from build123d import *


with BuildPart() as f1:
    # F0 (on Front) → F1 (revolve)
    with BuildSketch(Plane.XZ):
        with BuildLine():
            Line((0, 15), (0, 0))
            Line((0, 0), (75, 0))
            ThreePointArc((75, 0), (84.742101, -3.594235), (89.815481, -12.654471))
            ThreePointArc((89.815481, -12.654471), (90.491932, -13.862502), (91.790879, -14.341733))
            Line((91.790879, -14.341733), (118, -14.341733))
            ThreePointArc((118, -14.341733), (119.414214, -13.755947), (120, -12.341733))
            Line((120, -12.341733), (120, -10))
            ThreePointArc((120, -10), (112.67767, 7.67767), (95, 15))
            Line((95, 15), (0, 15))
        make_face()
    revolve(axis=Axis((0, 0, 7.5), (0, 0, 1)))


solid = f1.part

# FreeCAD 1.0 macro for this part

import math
import FreeCAD as App
import Part
import Sketcher
from FreeCAD import Vector
Q = App.Units.Quantity

doc = App.newDocument("Part")
body = doc.addObject("PartDesign::Body", "Body")

# Sketch on XZ plane
sketch1 = body.newObject("Sketcher::SketchObject", "Sketch")
sketch1.AttachmentSupport = (doc.getObject("XZ_Plane"), [""])
sketch1.MapMode = "FlatFace"
sketch1.addGeometry([
    Part.LineSegment(Vector(0, 15, 0), Vector(0, 0, 0)),  # 0
    Part.LineSegment(Vector(0, 0, 0), Vector(75, 0, 0)),  # 1
    Part.ArcOfCircle(Part.Circle(Vector(75, -15, 0), Vector(0, 0, 1), 15), math.radians(9), math.radians(90)),  # 2
    Part.ArcOfCircle(Part.Circle(Vector(91.8, -12.3, 0), Vector(0, 0, 1), 2), math.radians(-171), math.radians(-90)),  # 3
    Part.LineSegment(Vector(91.8, -14.3, 0), Vector(118, -14.3, 0)),  # 4
    Part.ArcOfCircle(Part.Circle(Vector(118, -12.3, 0), Vector(0, 0, 1), 2), math.radians(-90), math.radians(0)),  # 5
    Part.LineSegment(Vector(120, -12.3, 0), Vector(120, -10, 0)),  # 6
    Part.ArcOfCircle(Part.Circle(Vector(95, -10, 0), Vector(0, 0, 1), 25), math.radians(0), math.radians(90)),  # 7
    Part.LineSegment(Vector(95, 15, 0), Vector(0, 15, 0)),  # 8
], False)
sketch1.addConstraint([
    Sketcher.Constraint("Coincident", 0, 2, 1, 1),
    Sketcher.Constraint("Tangent", 1, 2, 2, 2),
    Sketcher.Constraint("Tangent", 2, 1, 3, 1),
    Sketcher.Constraint("Tangent", 3, 2, 4, 1),
    Sketcher.Constraint("Tangent", 4, 2, 5, 1),
    Sketcher.Constraint("Tangent", 5, 2, 6, 1),
    Sketcher.Constraint("Tangent", 6, 2, 7, 1),
    Sketcher.Constraint("Tangent", 7, 2, 8, 1),
    Sketcher.Constraint("Coincident", 8, 2, 0, 1),
    Sketcher.Constraint("Vertical", 0),
    Sketcher.Constraint("Horizontal", 1),
    Sketcher.Constraint("Horizontal", 4),
    Sketcher.Constraint("Vertical", 6),
    Sketcher.Constraint("Horizontal", 8),
    Sketcher.Constraint("Coincident", 0, 2, -1, 1),
    Sketcher.Constraint("Equal", 3, 5),
    Sketcher.Constraint("Radius", 2, Q("14.999998 mm")),
    Sketcher.Constraint("Radius", 3, Q("2 mm")),
    Sketcher.Constraint("Radius", 7, Q("24.999998 mm")),
    Sketcher.Constraint("DistanceX", 1, 1, 1, 2, Q("75 mm")),
    Sketcher.Constraint("DistanceX", 8, 2, 8, 1, Q("95 mm")),
    Sketcher.Constraint("DistanceY", 0, 2, 0, 1, Q("15 mm")),
    Sketcher.Constraint("DistanceX", 4, 1, 4, 2, Q("26.209121 mm")),
])
revolution = body.newObject("PartDesign::Revolution", "Revolution")
revolution.Profile = sketch1
revolution.ReferenceAxis = (sketch1, ["V_Axis"])
revolution.Angle = 360

doc.recompute()
